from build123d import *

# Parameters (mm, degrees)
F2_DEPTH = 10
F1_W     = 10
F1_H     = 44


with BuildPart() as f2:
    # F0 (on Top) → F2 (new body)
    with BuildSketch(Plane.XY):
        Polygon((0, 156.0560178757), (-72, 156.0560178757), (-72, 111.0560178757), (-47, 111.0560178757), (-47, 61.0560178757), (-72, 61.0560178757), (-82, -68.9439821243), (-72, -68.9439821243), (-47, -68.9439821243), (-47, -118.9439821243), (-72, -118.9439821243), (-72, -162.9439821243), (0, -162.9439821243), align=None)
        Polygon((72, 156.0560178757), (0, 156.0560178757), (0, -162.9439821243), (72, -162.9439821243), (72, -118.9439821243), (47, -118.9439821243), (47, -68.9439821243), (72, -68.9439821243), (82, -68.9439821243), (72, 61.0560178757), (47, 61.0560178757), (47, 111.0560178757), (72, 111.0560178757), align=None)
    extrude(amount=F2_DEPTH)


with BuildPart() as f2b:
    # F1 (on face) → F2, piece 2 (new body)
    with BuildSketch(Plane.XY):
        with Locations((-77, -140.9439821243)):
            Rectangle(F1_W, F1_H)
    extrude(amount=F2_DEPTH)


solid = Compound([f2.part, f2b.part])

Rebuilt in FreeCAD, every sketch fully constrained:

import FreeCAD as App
import Part
import Sketcher

V = App.Vector

doc = App.newDocument("Part")
body = doc.addObject("PartDesign::Body", "Body")

# Sketch on XY plane
sketch1 = body.newObject("Sketcher::SketchObject", "Sketch")
sketch1.AttachmentSupport = (doc.getObject("XY_Plane"), [""])
sketch1.MapMode = "FlatFace"
sketch1.addGeometry([
    Part.LineSegment(V(-72, 156, 0), V(-72, 111, 0)),  # 0
    Part.LineSegment(V(-72, 111, 0), V(-47, 111, 0)),  # 1
    Part.LineSegment(V(-47, 111, 0), V(-47, 61, 0)),  # 2
    Part.LineSegment(V(-47, 61, 0), V(-72, 61, 0)),  # 3
    Part.LineSegment(V(-72, 61, 0), V(-82, -69, 0)),  # 4
    Part.LineSegment(V(-82, -69, 0), V(-47, -69, 0)),  # 5
    Part.LineSegment(V(-47, -69, 0), V(-47, -119, 0)),  # 6
    Part.LineSegment(V(-47, -119, 0), V(-72, -119, 0)),  # 7
    Part.LineSegment(V(-72, -119, 0), V(-72, -163, 0)),  # 8
    Part.LineSegment(V(-72, -163, 0), V(72, -163, 0)),  # 9
    Part.LineSegment(V(72, -163, 0), V(72, -119, 0)),  # 10
    Part.LineSegment(V(72, -119, 0), V(47, -119, 0)),  # 11
    Part.LineSegment(V(47, -119, 0), V(47, -69, 0)),  # 12
    Part.LineSegment(V(47, -69, 0), V(82, -69, 0)),  # 13
    Part.LineSegment(V(82, -69, 0), V(72, 61, 0)),  # 14
    Part.LineSegment(V(72, 61, 0), V(47, 61, 0)),  # 15
    Part.LineSegment(V(47, 61, 0), V(47, 111, 0)),  # 16
    Part.LineSegment(V(47, 111, 0), V(72, 111, 0)),  # 17
    Part.LineSegment(V(72, 111, 0), V(72, 156, 0)),  # 18
    Part.LineSegment(V(72, 156, 0), V(-72, 156, 0)),  # 19
], False)
sketch1.addConstraint([
    Sketcher.Constraint("Coincident", 0, 2, 1, 1),
    Sketcher.Constraint("Coincident", 1, 2, 2, 1),
    Sketcher.Constraint("Coincident", 2, 2, 3, 1),
    Sketcher.Constraint("Coincident", 3, 2, 4, 1),
    Sketcher.Constraint("Coincident", 4, 2, 5, 1),
    Sketcher.Constraint("Coincident", 5, 2, 6, 1),
    Sketcher.Constraint("Coincident", 6, 2, 7, 1),
    Sketcher.Constraint("Coincident", 7, 2, 8, 1),
    Sketcher.Constraint("Coincident", 8, 2, 9, 1),
    Sketcher.Constraint("Coincident", 9, 2, 10, 1),
    Sketcher.Constraint("Coincident", 10, 2, 11, 1),
    Sketcher.Constraint("Coincident", 11, 2, 12, 1),
    Sketcher.Constraint("Coincident", 12, 2, 13, 1),
    Sketcher.Constraint("Coincident", 13, 2, 14, 1),
    Sketcher.Constraint("Coincident", 14, 2, 15, 1),
    Sketcher.Constraint("Coincident", 15, 2, 16, 1),
    Sketcher.Constraint("Coincident", 16, 2, 17, 1),
    Sketcher.Constraint("Coincident", 17, 2, 18, 1),
    Sketcher.Constraint("Coincident", 18, 2, 19, 1),
    Sketcher.Constraint("Coincident", 19, 2, 0, 1),
    Sketcher.Constraint("Vertical", 0),
    Sketcher.Constraint("Horizontal", 1),
    Sketcher.Constraint("Vertical", 2),
    Sketcher.Constraint("Horizontal", 3),
    Sketcher.Constraint("Horizontal", 5),
    Sketcher.Constraint("Vertical", 6),
    Sketcher.Constraint("Horizontal", 7),
    Sketcher.Constraint("Vertical", 8),
    Sketcher.Constraint("Horizontal", 9),
    Sketcher.Constraint("Vertical", 10),
    Sketcher.Constraint("Horizontal", 11),
    Sketcher.Constraint("Vertical", 12),
    Sketcher.Constraint("Horizontal", 13),
    Sketcher.Constraint("Horizontal", 15),
    Sketcher.Constraint("Vertical", 16),
    Sketcher.Constraint("Horizontal", 17),
    Sketcher.Constraint("Vertical", 18),
    Sketcher.Constraint("Horizontal", 19),
    Sketcher.Constraint("Symmetric", 7, 2, 10, 2, -2),
    Sketcher.Constraint("Symmetric", 5, 2, 12, 2, -2),
    Sketcher.Constraint("Symmetric", 3, 2, 14, 2, -2),
    Sketcher.Constraint("Symmetric", 1, 2, 16, 2, -2),
    Sketcher.Constraint("Vertical", 0, 2, 3, 2),
    Sketcher.Constraint("Vertical", 2, 2, 5, 2),
    Sketcher.Constraint("Vertical", 3, 2, 7, 2),
    Sketcher.Constraint("Vertical", 14, 2, 17, 2),
    Sketcher.Constraint("Equal", 5, 13),
    Sketcher.Constraint("Equal", 2, 6),
    Sketcher.Constraint("DistanceX", 1, 1, 1, 2, 25.0),
    Sketcher.Constraint("DistanceX", 5, 1, 5, 2, 35.0),
    Sketcher.Constraint("DistanceX", 9, 1, 9, 2, 144.0),
    Sketcher.Constraint("DistanceY", 0, 2, 0, 1, 45.0),
    Sketcher.Constraint("DistanceY", 2, 2, 2, 1, 50.0),
    Sketcher.Constraint("DistanceY", 8, 2, 8, 1, 44.0),
    Sketcher.Constraint("DistanceY", 4, 2, 3, 2, 130.0),
    Sketcher.Constraint("DistanceY", -1, 1, 0, 2, 111.056018),
])
pad1 = body.newObject("PartDesign::Pad", "Pad")
pad1.Profile = sketch1
pad1.Length = 10
body2 = doc.addObject("PartDesign::Body", "Body001")

# Sketch on XY plane
sketch2 = body2.newObject("Sketcher::SketchObject", "Sketch001")
sketch2.AttachmentSupport = (doc.getObject("XY_Plane001"), [""])
sketch2.MapMode = "FlatFace"
sketch2.addGeometry([
    Part.LineSegment(V(-82, -119, 0), V(-82, -163, 0)),
    Part.LineSegment(V(-82, -163, 0), V(-72, -163, 0)),
    Part.LineSegment(V(-72, -163, 0), V(-72, -119, 0)),
    Part.LineSegment(V(-72, -119, 0), V(-82, -119, 0)),
], False)
sketch2.addConstraint([
    Sketcher.Constraint("Coincident", 0, 2, 1, 1),
    Sketcher.Constraint("Coincident", 1, 2, 2, 1),
    Sketcher.Constraint("Coincident", 2, 2, 3, 1),
    Sketcher.Constraint("Coincident", 3, 2, 0, 1),
    Sketcher.Constraint("Vertical", 0),
    Sketcher.Constraint("Horizontal", 1),
    Sketcher.Constraint("Vertical", 2),
    Sketcher.Constraint("Horizontal", 3),
    Sketcher.Constraint("DistanceX", 1, 1, 1, 2, 10.0),
    Sketcher.Constraint("DistanceY", 0, 2, 0, 1, 44.0),
    Sketcher.Constraint("DistanceX", 0, 2, -1, 1, 82.0),
    Sketcher.Constraint("DistanceY", 0, 2, -1, 1, 162.943982),
])
pad2 = body2.newObject("PartDesign::Pad", "Pad001")
pad2.Profile = sketch2
pad2.Length = 10

doc.recompute()
